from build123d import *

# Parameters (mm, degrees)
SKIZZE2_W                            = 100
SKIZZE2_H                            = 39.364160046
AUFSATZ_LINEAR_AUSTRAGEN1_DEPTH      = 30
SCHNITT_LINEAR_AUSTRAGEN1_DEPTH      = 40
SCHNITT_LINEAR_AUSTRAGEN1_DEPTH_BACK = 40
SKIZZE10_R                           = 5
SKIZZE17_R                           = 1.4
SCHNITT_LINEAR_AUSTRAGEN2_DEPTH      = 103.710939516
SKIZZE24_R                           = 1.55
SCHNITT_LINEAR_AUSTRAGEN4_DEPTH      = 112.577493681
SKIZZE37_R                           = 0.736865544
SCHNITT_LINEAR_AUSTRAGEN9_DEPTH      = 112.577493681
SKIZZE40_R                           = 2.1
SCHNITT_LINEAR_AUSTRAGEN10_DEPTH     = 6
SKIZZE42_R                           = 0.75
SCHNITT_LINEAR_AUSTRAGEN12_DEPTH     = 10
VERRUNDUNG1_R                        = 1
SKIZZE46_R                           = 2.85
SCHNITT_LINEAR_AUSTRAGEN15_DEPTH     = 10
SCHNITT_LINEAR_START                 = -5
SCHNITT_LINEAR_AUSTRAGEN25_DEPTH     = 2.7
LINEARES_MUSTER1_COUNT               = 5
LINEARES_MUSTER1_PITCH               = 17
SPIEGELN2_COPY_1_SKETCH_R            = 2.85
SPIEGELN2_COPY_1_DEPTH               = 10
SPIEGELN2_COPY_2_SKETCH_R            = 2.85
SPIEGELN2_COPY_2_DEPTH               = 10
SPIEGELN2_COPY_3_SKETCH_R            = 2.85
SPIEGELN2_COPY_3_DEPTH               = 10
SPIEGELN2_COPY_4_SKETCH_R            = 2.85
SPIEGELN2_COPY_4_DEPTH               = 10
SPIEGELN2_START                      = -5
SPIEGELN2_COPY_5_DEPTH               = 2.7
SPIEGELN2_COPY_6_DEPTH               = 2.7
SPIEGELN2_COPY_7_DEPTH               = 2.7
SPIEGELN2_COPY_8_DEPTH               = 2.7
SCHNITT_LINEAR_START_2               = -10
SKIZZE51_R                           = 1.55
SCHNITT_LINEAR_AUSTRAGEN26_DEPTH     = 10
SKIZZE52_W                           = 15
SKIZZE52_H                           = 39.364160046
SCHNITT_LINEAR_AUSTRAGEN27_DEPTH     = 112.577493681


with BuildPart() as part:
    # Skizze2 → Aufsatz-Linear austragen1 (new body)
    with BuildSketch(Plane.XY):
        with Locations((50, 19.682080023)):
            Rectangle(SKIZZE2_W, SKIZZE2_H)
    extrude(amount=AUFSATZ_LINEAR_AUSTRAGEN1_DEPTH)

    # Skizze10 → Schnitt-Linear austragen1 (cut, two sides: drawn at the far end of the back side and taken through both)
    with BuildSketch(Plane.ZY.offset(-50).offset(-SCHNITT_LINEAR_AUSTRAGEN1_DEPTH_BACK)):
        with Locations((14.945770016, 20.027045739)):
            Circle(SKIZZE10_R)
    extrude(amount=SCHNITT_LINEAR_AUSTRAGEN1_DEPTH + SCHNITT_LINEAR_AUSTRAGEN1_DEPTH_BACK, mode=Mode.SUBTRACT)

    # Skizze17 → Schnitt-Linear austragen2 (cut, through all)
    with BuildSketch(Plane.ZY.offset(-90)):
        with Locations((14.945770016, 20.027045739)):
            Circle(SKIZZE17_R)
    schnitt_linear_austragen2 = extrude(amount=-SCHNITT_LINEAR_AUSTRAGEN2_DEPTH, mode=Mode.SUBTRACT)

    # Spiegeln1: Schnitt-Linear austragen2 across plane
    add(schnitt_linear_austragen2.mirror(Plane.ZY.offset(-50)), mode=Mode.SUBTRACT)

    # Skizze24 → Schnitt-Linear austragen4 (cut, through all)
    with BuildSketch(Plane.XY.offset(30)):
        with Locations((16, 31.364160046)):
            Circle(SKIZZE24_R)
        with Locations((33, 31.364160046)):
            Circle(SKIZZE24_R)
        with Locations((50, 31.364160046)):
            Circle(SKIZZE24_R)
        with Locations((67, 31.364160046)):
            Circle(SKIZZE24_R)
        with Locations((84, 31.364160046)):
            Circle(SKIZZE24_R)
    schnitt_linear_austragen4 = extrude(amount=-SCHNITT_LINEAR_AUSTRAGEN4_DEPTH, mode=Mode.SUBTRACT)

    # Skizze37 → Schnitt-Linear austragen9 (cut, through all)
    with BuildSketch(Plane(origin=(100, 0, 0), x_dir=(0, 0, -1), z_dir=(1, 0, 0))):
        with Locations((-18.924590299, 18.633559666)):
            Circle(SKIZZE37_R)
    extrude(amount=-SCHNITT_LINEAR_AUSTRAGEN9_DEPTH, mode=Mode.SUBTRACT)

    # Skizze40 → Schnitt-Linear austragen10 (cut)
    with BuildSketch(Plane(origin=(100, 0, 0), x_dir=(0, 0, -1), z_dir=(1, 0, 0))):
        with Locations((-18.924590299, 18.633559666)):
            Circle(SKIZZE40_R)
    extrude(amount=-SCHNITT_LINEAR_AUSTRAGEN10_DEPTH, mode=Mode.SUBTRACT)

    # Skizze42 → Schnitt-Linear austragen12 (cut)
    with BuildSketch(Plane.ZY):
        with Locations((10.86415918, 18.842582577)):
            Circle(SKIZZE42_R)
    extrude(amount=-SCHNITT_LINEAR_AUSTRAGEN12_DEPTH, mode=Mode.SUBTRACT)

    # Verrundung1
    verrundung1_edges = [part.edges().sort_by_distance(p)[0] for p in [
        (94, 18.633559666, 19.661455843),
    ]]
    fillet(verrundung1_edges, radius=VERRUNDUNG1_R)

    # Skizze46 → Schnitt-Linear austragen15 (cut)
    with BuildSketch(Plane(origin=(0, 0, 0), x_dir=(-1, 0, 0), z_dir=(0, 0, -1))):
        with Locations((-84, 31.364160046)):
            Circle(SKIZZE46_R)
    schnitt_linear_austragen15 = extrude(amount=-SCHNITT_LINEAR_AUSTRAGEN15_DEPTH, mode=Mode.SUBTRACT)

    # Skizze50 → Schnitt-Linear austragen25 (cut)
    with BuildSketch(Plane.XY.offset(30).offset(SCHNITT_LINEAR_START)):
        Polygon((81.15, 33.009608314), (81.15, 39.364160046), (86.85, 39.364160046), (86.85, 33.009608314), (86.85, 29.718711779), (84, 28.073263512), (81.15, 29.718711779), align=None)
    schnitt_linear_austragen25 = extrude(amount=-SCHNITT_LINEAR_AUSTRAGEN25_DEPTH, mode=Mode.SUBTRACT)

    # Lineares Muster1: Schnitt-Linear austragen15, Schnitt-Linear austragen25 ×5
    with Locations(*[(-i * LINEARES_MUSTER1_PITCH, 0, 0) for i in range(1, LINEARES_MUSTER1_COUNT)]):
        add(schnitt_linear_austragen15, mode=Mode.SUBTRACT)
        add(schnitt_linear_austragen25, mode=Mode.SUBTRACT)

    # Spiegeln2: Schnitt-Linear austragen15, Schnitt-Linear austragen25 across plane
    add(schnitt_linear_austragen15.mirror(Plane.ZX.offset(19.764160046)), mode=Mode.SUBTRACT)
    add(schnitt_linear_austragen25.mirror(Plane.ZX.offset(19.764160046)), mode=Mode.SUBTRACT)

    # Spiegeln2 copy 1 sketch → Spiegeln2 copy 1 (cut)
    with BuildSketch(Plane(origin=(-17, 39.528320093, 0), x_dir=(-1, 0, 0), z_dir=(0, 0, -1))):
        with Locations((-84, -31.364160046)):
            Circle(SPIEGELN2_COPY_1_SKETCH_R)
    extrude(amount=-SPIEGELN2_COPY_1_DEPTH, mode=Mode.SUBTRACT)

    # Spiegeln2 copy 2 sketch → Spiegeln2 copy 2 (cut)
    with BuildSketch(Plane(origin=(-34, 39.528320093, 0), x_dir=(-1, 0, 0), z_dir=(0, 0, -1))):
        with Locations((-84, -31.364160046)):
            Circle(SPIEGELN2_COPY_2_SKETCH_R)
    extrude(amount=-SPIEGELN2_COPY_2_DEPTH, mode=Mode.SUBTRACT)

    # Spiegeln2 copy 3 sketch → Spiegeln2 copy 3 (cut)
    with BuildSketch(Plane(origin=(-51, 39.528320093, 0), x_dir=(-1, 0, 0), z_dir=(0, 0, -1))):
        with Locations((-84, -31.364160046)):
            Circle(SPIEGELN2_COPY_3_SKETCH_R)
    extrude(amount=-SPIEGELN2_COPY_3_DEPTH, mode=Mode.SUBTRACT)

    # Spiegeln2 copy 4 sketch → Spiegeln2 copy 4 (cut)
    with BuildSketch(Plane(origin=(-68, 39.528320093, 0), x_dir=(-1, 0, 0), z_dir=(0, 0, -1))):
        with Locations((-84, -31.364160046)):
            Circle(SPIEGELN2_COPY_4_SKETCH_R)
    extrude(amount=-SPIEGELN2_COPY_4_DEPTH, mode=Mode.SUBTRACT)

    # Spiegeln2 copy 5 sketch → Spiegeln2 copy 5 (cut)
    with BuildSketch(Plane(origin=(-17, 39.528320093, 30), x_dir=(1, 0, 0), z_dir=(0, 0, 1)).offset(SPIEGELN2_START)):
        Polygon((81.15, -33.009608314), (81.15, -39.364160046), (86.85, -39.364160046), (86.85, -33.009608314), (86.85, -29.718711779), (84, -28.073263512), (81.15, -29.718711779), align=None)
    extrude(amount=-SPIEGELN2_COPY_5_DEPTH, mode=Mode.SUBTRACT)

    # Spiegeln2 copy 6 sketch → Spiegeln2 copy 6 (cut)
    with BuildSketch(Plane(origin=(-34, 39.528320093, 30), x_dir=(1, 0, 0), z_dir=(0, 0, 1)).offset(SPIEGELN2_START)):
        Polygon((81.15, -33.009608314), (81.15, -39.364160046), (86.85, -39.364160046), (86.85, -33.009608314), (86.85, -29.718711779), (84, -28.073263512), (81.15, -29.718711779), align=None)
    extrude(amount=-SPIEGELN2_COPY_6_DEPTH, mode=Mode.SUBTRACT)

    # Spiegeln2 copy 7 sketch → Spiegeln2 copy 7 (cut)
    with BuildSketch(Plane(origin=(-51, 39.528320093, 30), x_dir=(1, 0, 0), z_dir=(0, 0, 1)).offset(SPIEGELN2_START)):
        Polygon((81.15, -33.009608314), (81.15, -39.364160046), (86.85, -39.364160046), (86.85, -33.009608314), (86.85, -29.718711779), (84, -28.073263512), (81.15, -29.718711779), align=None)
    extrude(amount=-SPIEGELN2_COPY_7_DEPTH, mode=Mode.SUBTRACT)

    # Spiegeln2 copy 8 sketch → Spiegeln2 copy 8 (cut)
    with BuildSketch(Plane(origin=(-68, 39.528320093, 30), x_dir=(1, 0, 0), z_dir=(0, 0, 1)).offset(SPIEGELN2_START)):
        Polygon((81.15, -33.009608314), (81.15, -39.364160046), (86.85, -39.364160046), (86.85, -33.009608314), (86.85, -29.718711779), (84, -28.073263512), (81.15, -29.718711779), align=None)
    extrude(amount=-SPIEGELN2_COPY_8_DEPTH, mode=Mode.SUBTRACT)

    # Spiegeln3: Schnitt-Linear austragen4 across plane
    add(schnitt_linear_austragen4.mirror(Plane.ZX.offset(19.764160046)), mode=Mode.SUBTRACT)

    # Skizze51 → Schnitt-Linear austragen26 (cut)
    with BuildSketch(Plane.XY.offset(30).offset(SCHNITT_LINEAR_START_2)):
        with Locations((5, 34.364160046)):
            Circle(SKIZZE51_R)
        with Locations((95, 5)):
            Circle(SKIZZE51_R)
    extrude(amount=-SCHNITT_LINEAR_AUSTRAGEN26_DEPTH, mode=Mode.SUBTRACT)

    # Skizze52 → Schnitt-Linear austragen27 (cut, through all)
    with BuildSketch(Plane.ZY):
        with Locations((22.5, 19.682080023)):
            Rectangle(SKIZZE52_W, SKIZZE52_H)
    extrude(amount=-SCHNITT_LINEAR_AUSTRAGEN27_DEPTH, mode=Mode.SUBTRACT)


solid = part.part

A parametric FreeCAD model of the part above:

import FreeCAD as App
import Part
import Sketcher
Q = App.Units.Quantity


def edges_at(feature, points):
    """Names of the edges that pass closest to the given points."""
    edges = feature.Shape.Edges
    near = lambda p: min(range(len(edges)), key=lambda i: edges[i].distToShape(Part.Vertex(*p))[0])
    return sorted({f"Edge{near(p) + 1}" for p in points})


def add_polygon(sketch, points):
    """Adds a closed chain of lines whose ends are joined by coincident constraints."""
    first, n = sketch.GeometryCount, len(points)
    for a, b in zip(points, points[1:] + points[:1]):
        sketch.addGeometry(Part.LineSegment(App.Vector(*a, 0), App.Vector(*b, 0)), False)
    for i in range(n):
        sketch.addConstraint(Sketcher.Constraint("Coincident", first + i, 2, first + (i + 1) % n, 1))

doc = App.newDocument("Part")
body = doc.addObject("PartDesign::Body", "Body")

sketch1 = body.newObject("Sketcher::SketchObject", "Sketch")
sketch1.AttachmentSupport = (doc.getObject("XY_Plane"), [""])
sketch1.MapMode = "FlatFace"
add_polygon(sketch1, [(0, 39), (0, 0), (100, 0), (100, 39)])
sketch1.addConstraint([
    Sketcher.Constraint("Vertical", 0),
    Sketcher.Constraint("Horizontal", 1),
    Sketcher.Constraint("Vertical", 2),
    Sketcher.Constraint("Horizontal", 3),
    Sketcher.Constraint("Coincident", 0, 2, -1, 1),
    Sketcher.Constraint("DistanceX", 1, 1, 1, 2, Q("100 mm")),
    Sketcher.Constraint("DistanceY", 0, 2, 0, 1, Q("39.36416 mm")),
])
pad1 = body.newObject("PartDesign::Pad", "Pad")
pad1.Profile = sketch1
pad1.Length = 30

sketch2 = body.newObject("Sketcher::SketchObject", "Sketch001")
sketch2.AttachmentSupport = (doc.getObject("YZ_Plane"), [""])
sketch2.MapMode = "FlatFace"
sketch2.AttachmentOffset = App.Placement(App.Vector(0, 0, 50), App.Rotation())
sketch2.addGeometry(Part.Circle(App.Vector(20, 15, 0), App.Vector(0, 0, 1), 5), False)
sketch2.addConstraint([
    Sketcher.Constraint("Diameter", 0, Q("10 mm")),
    Sketcher.Constraint("DistanceY", -1, 1, 0, 3, Q("14.94577 mm")),
    Sketcher.Constraint("DistanceX", -1, 1, 0, 3, Q("20.027046 mm")),
])
pocket1 = body.newObject("PartDesign::Pocket", "Pocket")
pocket1.Profile = sketch2
pocket1.Type = "TwoLengths"
pocket1.Length = 40
pocket1.Length2 = 40

sketch3 = body.newObject("Sketcher::SketchObject", "Sketch002")
sketch3.AttachmentSupport = (doc.getObject("YZ_Plane"), [""])
sketch3.MapMode = "FlatFace"
sketch3.AttachmentOffset = App.Placement(App.Vector(0, 0, 90), App.Rotation())
sketch3.addGeometry(Part.Circle(App.Vector(20, 14.9, 0), App.Vector(0, 0, 1), 1.4), False)
sketch3.addConstraint([
    Sketcher.Constraint("Diameter", 0, Q("2.8 mm")),
    Sketcher.Constraint("DistanceY", -1, 1, 0, 3, Q("14.94577 mm")),
    Sketcher.Constraint("DistanceX", -1, 1, 0, 3, Q("20.027046 mm")),
])
pocket2 = body.newObject("PartDesign::Pocket", "Pocket001")
pocket2.Profile = sketch3
pocket2.Type = "ThroughAll"
pocket2.Reversed = True
doc.recompute()

datumplane = body.newObject("PartDesign::Plane", "DatumPlane")
datumplane.AttachmentSupport = (doc.getObject("YZ_Plane"), [""])
datumplane.MapMode = "FlatFace"
datumplane.AttachmentOffset = App.Placement(App.Vector(0, 0, 50), App.Rotation())
mirrored = body.newObject("PartDesign::Mirrored", "Mirrored")
mirrored.Originals = [pocket2]
mirrored.MirrorPlane = (datumplane, [""])
body.Tip = mirrored

sketch4 = body.newObject("Sketcher::SketchObject", "Sketch003")
sketch4.AttachmentSupport = (doc.getObject("XY_Plane"), [""])
sketch4.MapMode = "FlatFace"
sketch4.AttachmentOffset = App.Placement(App.Vector(0, 0, 30), App.Rotation())
sketch4.addGeometry([
    Part.Circle(App.Vector(16, 31.4, 0), App.Vector(0, 0, 1), 1.6),
    Part.Circle(App.Vector(33, 31.4, 0), App.Vector(0, 0, 1), 1.6),
    Part.Circle(App.Vector(50, 31.4, 0), App.Vector(0, 0, 1), 1.6),
    Part.Circle(App.Vector(67, 31.4, 0), App.Vector(0, 0, 1), 1.6),
    Part.Circle(App.Vector(84, 31.4, 0), App.Vector(0, 0, 1), 1.6),
], False)
sketch4.addConstraint([
    Sketcher.Constraint("Equal", 0, 1),
    Sketcher.Constraint("Equal", 1, 2),
    Sketcher.Constraint("Equal", 2, 3),
    Sketcher.Constraint("Equal", 3, 4),
    Sketcher.Constraint("Horizontal", 0, 3, 1, 3),
    Sketcher.Constraint("Horizontal", 1, 3, 2, 3),
    Sketcher.Constraint("Horizontal", 2, 3, 3, 3),
    Sketcher.Constraint("Horizontal", 3, 3, 4, 3),
    Sketcher.Constraint("Diameter", 0, Q("3.1 mm")),
    Sketcher.Constraint("DistanceX", -1, 1, 0, 3, Q("16 mm")),
    Sketcher.Constraint("DistanceX", -1, 1, 1, 3, Q("33 mm")),
    Sketcher.Constraint("DistanceX", -1, 1, 2, 3, Q("50 mm")),
    Sketcher.Constraint("DistanceX", -1, 1, 3, 3, Q("67 mm")),
    Sketcher.Constraint("DistanceX", -1, 1, 4, 3, Q("84 mm")),
    Sketcher.Constraint("DistanceY", -1, 1, 0, 3, Q("31.36416 mm")),
])
pocket3 = body.newObject("PartDesign::Pocket", "Pocket002")
pocket3.Profile = sketch4
pocket3.Type = "ThroughAll"

sketch5 = body.newObject("Sketcher::SketchObject", "Sketch004")
sketch5.AttachmentSupport = (doc.getObject("YZ_Plane"), [""])
sketch5.MapMode = "FlatFace"
sketch5.AttachmentOffset = App.Placement(App.Vector(0, 0, 100), App.Rotation())
sketch5.addGeometry(Part.Circle(App.Vector(18.6, 18.9, 0), App.Vector(0, 0, 1), 0.7), False)
sketch5.addConstraint([
    Sketcher.Constraint("Diameter", 0, Q("1.473731 mm")),
    Sketcher.Constraint("DistanceX", -1, 1, 0, 3, Q("18.63356 mm")),
    Sketcher.Constraint("DistanceY", -1, 1, 0, 3, Q("18.92459 mm")),
])
pocket4 = body.newObject("PartDesign::Pocket", "Pocket003")
pocket4.Profile = sketch5
pocket4.Type = "ThroughAll"

sketch6 = body.newObject("Sketcher::SketchObject", "Sketch005")
sketch6.AttachmentSupport = (doc.getObject("YZ_Plane"), [""])
sketch6.MapMode = "FlatFace"
sketch6.AttachmentOffset = App.Placement(App.Vector(0, 0, 100), App.Rotation())
sketch6.addGeometry(Part.Circle(App.Vector(18.6, 18.9, 0), App.Vector(0, 0, 1), 2.1), False)
sketch6.addConstraint([
    Sketcher.Constraint("Diameter", 0, Q("4.2 mm")),
    Sketcher.Constraint("DistanceX", -1, 1, 0, 3, Q("18.63356 mm")),
    Sketcher.Constraint("DistanceY", -1, 1, 0, 3, Q("18.92459 mm")),
])
pocket5 = body.newObject("PartDesign::Pocket", "Pocket004")
pocket5.Profile = sketch6
pocket5.Length = 6

sketch7 = body.newObject("Sketcher::SketchObject", "Sketch006")
sketch7.AttachmentSupport = (doc.getObject("YZ_Plane"), [""])
sketch7.MapMode = "FlatFace"
sketch7.addGeometry(Part.Circle(App.Vector(18.8, 10.9, 0), App.Vector(0, 0, 1), 0.8), False)
sketch7.addConstraint([
    Sketcher.Constraint("Diameter", 0, Q("1.5 mm")),
    Sketcher.Constraint("DistanceY", -1, 1, 0, 3, Q("10.864159 mm")),
    Sketcher.Constraint("DistanceX", -1, 1, 0, 3, Q("18.842583 mm")),
])
pocket6 = body.newObject("PartDesign::Pocket", "Pocket005")
pocket6.Profile = sketch7
pocket6.Length = 10
pocket6.Reversed = True
doc.recompute()

fillet = body.newObject("PartDesign::Fillet", "Fillet")
fillet.Base = (pocket6, edges_at(pocket6, [(94, 18.634, 19.661)]))
fillet.Radius = 1

sketch8 = body.newObject("Sketcher::SketchObject", "Sketch007")
sketch8.AttachmentSupport = (doc.getObject("XY_Plane"), [""])
sketch8.MapMode = "FlatFace"
sketch8.addGeometry(Part.Circle(App.Vector(84, 31.4, 0), App.Vector(0, 0, 1), 2.9), False)
sketch8.addConstraint([
    Sketcher.Constraint("Diameter", 0, Q("5.7 mm")),
    Sketcher.Constraint("DistanceX", -1, 1, 0, 3, Q("84 mm")),
    Sketcher.Constraint("DistanceY", -1, 1, 0, 3, Q("31.36416 mm")),
])
pocket7 = body.newObject("PartDesign::Pocket", "Pocket006")
pocket7.Profile = sketch8
pocket7.Length = 10
pocket7.Reversed = True

sketch9 = body.newObject("Sketcher::SketchObject", "Sketch008")
sketch9.AttachmentSupport = (doc.getObject("XY_Plane"), [""])
sketch9.MapMode = "FlatFace"
sketch9.AttachmentOffset = App.Placement(App.Vector(0, 0, 25), App.Rotation())
add_polygon(sketch9, [(81.2, 39.4), (81.2, 29.7), (84, 28.1), (86.8, 29.7), (86.8, 39.4)])
sketch9.addConstraint([
    Sketcher.Constraint("Vertical", 0),
    Sketcher.Constraint("Vertical", 3),
    Sketcher.Constraint("Horizontal", 4),
    Sketcher.Constraint("Horizontal", 0, 2, 2, 2),
    Sketcher.Constraint("Equal", 1, 2),
    Sketcher.Constraint("Angle", 1, Q("-30 deg")),
    Sketcher.Constraint("DistanceX", 4, 2, 4, 1, Q("5.7 mm")),
    Sketcher.Constraint("DistanceX", -1, 1, 1, 2, Q("84 mm")),
    Sketcher.Constraint("DistanceY", 0, 2, 0, 1, Q("9.645448 mm")),
    Sketcher.Constraint("DistanceY", -1, 1, 0, 2, Q("29.718712 mm")),
])
pocket8 = body.newObject("PartDesign::Pocket", "Pocket007")
pocket8.Profile = sketch9
pocket8.Length = 2.7
doc.recompute()

linearpattern = body.newObject("PartDesign::LinearPattern", "LinearPattern")
linearpattern.Originals = [pocket7, pocket8]
linearpattern.Direction = (doc.getObject("X_Axis"), [""])
linearpattern.Mode = "offset"
linearpattern.Offset = 17
linearpattern.Occurrences = 5
linearpattern.Reversed = True
body.Tip = linearpattern
doc.recompute()

datumplane2 = body.newObject("PartDesign::Plane", "DatumPlane001")
datumplane2.AttachmentSupport = (doc.getObject("XZ_Plane"), [""])
datumplane2.MapMode = "FlatFace"
datumplane2.AttachmentOffset = App.Placement(App.Vector(0, 0, -19.76416), App.Rotation())
mirrored2 = body.newObject("PartDesign::Mirrored", "Mirrored001")
mirrored2.Originals = [pocket7, pocket8]
mirrored2.MirrorPlane = (datumplane2, [""])
body.Tip = mirrored2

sketch10 = body.newObject("Sketcher::SketchObject", "Sketch009")
sketch10.AttachmentSupport = (doc.getObject("XY_Plane"), [""])
sketch10.MapMode = "FlatFace"
sketch10.addGeometry(Part.Circle(App.Vector(67, 8.2, 0), App.Vector(0, 0, 1), 2.9), False)
sketch10.addConstraint([
    Sketcher.Constraint("Diameter", 0, Q("5.7 mm")),
    Sketcher.Constraint("DistanceX", -1, 1, 0, 3, Q("67 mm")),
    Sketcher.Constraint("DistanceY", -1, 1, 0, 3, Q("8.16416 mm")),
])
pocket9 = body.newObject("PartDesign::Pocket", "Pocket008")
pocket9.Profile = sketch10
pocket9.Length = 10
pocket9.Reversed = True

sketch11 = body.newObject("Sketcher::SketchObject", "Sketch010")
sketch11.AttachmentSupport = (doc.getObject("XY_Plane"), [""])
sketch11.MapMode = "FlatFace"
sketch11.addGeometry(Part.Circle(App.Vector(50, 8.2, 0), App.Vector(0, 0, 1), 2.9), False)
sketch11.addConstraint([
    Sketcher.Constraint("Diameter", 0, Q("5.7 mm")),
    Sketcher.Constraint("DistanceX", -1, 1, 0, 3, Q("50 mm")),
    Sketcher.Constraint("DistanceY", -1, 1, 0, 3, Q("8.16416 mm")),
])
pocket10 = body.newObject("PartDesign::Pocket", "Pocket009")
pocket10.Profile = sketch11
pocket10.Length = 10
pocket10.Reversed = True

sketch12 = body.newObject("Sketcher::SketchObject", "Sketch011")
sketch12.AttachmentSupport = (doc.getObject("XY_Plane"), [""])
sketch12.MapMode = "FlatFace"
sketch12.addGeometry(Part.Circle(App.Vector(33, 8.2, 0), App.Vector(0, 0, 1), 2.9), False)
sketch12.addConstraint([
    Sketcher.Constraint("Diameter", 0, Q("5.7 mm")),
    Sketcher.Constraint("DistanceX", -1, 1, 0, 3, Q("33 mm")),
    Sketcher.Constraint("DistanceY", -1, 1, 0, 3, Q("8.16416 mm")),
])
pocket11 = body.newObject("PartDesign::Pocket", "Pocket010")
pocket11.Profile = sketch12
pocket11.Length = 10
pocket11.Reversed = True

sketch13 = body.newObject("Sketcher::SketchObject", "Sketch012")
sketch13.AttachmentSupport = (doc.getObject("XY_Plane"), [""])
sketch13.MapMode = "FlatFace"
sketch13.addGeometry(Part.Circle(App.Vector(16, 8.2, 0), App.Vector(0, 0, 1), 2.9), False)
sketch13.addConstraint([
    Sketcher.Constraint("Diameter", 0, Q("5.7 mm")),
    Sketcher.Constraint("DistanceX", -1, 1, 0, 3, Q("16 mm")),
    Sketcher.Constraint("DistanceY", -1, 1, 0, 3, Q("8.16416 mm")),
])
pocket12 = body.newObject("PartDesign::Pocket", "Pocket011")
pocket12.Profile = sketch13
pocket12.Length = 10
pocket12.Reversed = True

sketch14 = body.newObject("Sketcher::SketchObject", "Sketch013")
sketch14.AttachmentSupport = (doc.getObject("XY_Plane"), [""])
sketch14.MapMode = "FlatFace"
sketch14.AttachmentOffset = App.Placement(App.Vector(0, 0, 25), App.Rotation())
add_polygon(sketch14, [(64.2, 0.2), (69.8, 0.2), (69.8, 9.8), (67, 11.5), (64.2, 9.8)])
sketch14.addConstraint([
    Sketcher.Constraint("Horizontal", 0),
    Sketcher.Constraint("Vertical", 1),
    Sketcher.Constraint("Vertical", 4),
    Sketcher.Constraint("Horizontal", 1, 2, 3, 2),
    Sketcher.Constraint("Equal", 2, 3),
    Sketcher.Constraint("Angle", 2, Q("150 deg")),
    Sketcher.Constraint("DistanceX", 0, 1, 0, 2, Q("5.7 mm")),
    Sketcher.Constraint("DistanceX", -1, 1, 2, 2, Q("67 mm")),
    Sketcher.Constraint("DistanceY", 1, 1, 1, 2, Q("9.645448 mm")),
    Sketcher.Constraint("DistanceY", -1, 1, 0, 2, Q("0.16416 mm")),
])
pocket13 = body.newObject("PartDesign::Pocket", "Pocket012")
pocket13.Profile = sketch14
pocket13.Length = 2.7

sketch15 = body.newObject("Sketcher::SketchObject", "Sketch014")
sketch15.AttachmentSupport = (doc.getObject("XY_Plane"), [""])
sketch15.MapMode = "FlatFace"
sketch15.AttachmentOffset = App.Placement(App.Vector(0, 0, 25), App.Rotation())
add_polygon(sketch15, [(47.1, 0.2), (52.9, 0.2), (52.9, 9.8), (50, 11.5), (47.1, 9.8)])
sketch15.addConstraint([
    Sketcher.Constraint("Horizontal", 0),
    Sketcher.Constraint("Vertical", 1),
    Sketcher.Constraint("Vertical", 4),
    Sketcher.Constraint("Horizontal", 1, 2, 3, 2),
    Sketcher.Constraint("Equal", 2, 3),
    Sketcher.Constraint("Angle", 2, Q("150 deg")),
    Sketcher.Constraint("DistanceX", 0, 1, 0, 2, Q("5.7 mm")),
    Sketcher.Constraint("DistanceX", -1, 1, 2, 2, Q("50 mm")),
    Sketcher.Constraint("DistanceY", 1, 1, 1, 2, Q("9.645448 mm")),
    Sketcher.Constraint("DistanceY", -1, 1, 0, 2, Q("0.16416 mm")),
])
pocket14 = body.newObject("PartDesign::Pocket", "Pocket013")
pocket14.Profile = sketch15
pocket14.Length = 2.7

sketch16 = body.newObject("Sketcher::SketchObject", "Sketch015")
sketch16.AttachmentSupport = (doc.getObject("XY_Plane"), [""])
sketch16.MapMode = "FlatFace"
sketch16.AttachmentOffset = App.Placement(App.Vector(0, 0, 25), App.Rotation())
add_polygon(sketch16, [(30.1, 0.2), (35.9, 0.2), (35.9, 9.8), (33, 11.5), (30.1, 9.8)])
sketch16.addConstraint([
    Sketcher.Constraint("Horizontal", 0),
    Sketcher.Constraint("Vertical", 1),
    Sketcher.Constraint("Vertical", 4),
    Sketcher.Constraint("Horizontal", 1, 2, 3, 2),
    Sketcher.Constraint("Equal", 2, 3),
    Sketcher.Constraint("Angle", 2, Q("150 deg")),
    Sketcher.Constraint("DistanceX", 0, 1, 0, 2, Q("5.7 mm")),
    Sketcher.Constraint("DistanceX", -1, 1, 2, 2, Q("33 mm")),
    Sketcher.Constraint("DistanceY", 1, 1, 1, 2, Q("9.645448 mm")),
    Sketcher.Constraint("DistanceY", -1, 1, 0, 2, Q("0.16416 mm")),
])
pocket15 = body.newObject("PartDesign::Pocket", "Pocket014")
pocket15.Profile = sketch16
pocket15.Length = 2.7

sketch17 = body.newObject("Sketcher::SketchObject", "Sketch016")
sketch17.AttachmentSupport = (doc.getObject("XY_Plane"), [""])
sketch17.MapMode = "FlatFace"
sketch17.AttachmentOffset = App.Placement(App.Vector(0, 0, 25), App.Rotation())
add_polygon(sketch17, [(13.2, 0.2), (18.9, 0.2), (18.9, 9.8), (16, 11.5), (13.2, 9.8)])
sketch17.addConstraint([
    Sketcher.Constraint("Horizontal", 0),
    Sketcher.Constraint("Vertical", 1),
    Sketcher.Constraint("Vertical", 4),
    Sketcher.Constraint("Horizontal", 1, 2, 3, 2),
    Sketcher.Constraint("Equal", 2, 3),
    Sketcher.Constraint("Angle", 2, Q("150 deg")),
    Sketcher.Constraint("DistanceX", 0, 1, 0, 2, Q("5.7 mm")),
    Sketcher.Constraint("DistanceX", -1, 1, 2, 2, Q("16 mm")),
    Sketcher.Constraint("DistanceY", 1, 1, 1, 2, Q("9.645448 mm")),
    Sketcher.Constraint("DistanceY", -1, 1, 0, 2, Q("0.16416 mm")),
])
pocket16 = body.newObject("PartDesign::Pocket", "Pocket015")
pocket16.Profile = sketch17
pocket16.Length = 2.7
doc.recompute()

datumplane3 = body.newObject("PartDesign::Plane", "DatumPlane002")
datumplane3.AttachmentSupport = (doc.getObject("XZ_Plane"), [""])
datumplane3.MapMode = "FlatFace"
datumplane3.AttachmentOffset = App.Placement(App.Vector(0, 0, -19.76416), App.Rotation())
mirrored3 = body.newObject("PartDesign::Mirrored", "Mirrored002")
mirrored3.Originals = [pocket3]
mirrored3.MirrorPlane = (datumplane3, [""])
body.Tip = mirrored3

sketch18 = body.newObject("Sketcher::SketchObject", "Sketch017")
sketch18.AttachmentSupport = (doc.getObject("XY_Plane"), [""])
sketch18.MapMode = "FlatFace"
sketch18.AttachmentOffset = App.Placement(App.Vector(0, 0, 20), App.Rotation())
sketch18.addGeometry([
    Part.Circle(App.Vector(5, 34.4, 0), App.Vector(0, 0, 1), 1.6),
    Part.Circle(App.Vector(95, 5, 0), App.Vector(0, 0, 1), 1.6),
], False)
sketch18.addConstraint([
    Sketcher.Constraint("Equal", 0, 1),
    Sketcher.Constraint("Diameter", 0, Q("3.1 mm")),
    Sketcher.Constraint("DistanceX", -1, 1, 0, 3, Q("5 mm")),
    Sketcher.Constraint("DistanceX", -1, 1, 1, 3, Q("95 mm")),
    Sketcher.Constraint("DistanceY", -1, 1, 1, 3, Q("5 mm")),
    Sketcher.Constraint("DistanceY", -1, 1, 0, 3, Q("34.36416 mm")),
])
pocket17 = body.newObject("PartDesign::Pocket", "Pocket016")
pocket17.Profile = sketch18
pocket17.Length = 10

sketch19 = body.newObject("Sketcher::SketchObject", "Sketch018")
sketch19.AttachmentSupport = (doc.getObject("YZ_Plane"), [""])
sketch19.MapMode = "FlatFace"
add_polygon(sketch19, [(39, 15), (0, 15), (0, 30), (39, 30)])
sketch19.addConstraint([
    Sketcher.Constraint("Horizontal", 0),
    Sketcher.Constraint("Vertical", 1),
    Sketcher.Constraint("Horizontal", 2),
    Sketcher.Constraint("Vertical", 3),
    Sketcher.Constraint("PointOnObject", 0, 2, -2),
    Sketcher.Constraint("DistanceY", 1, 1, 1, 2, Q("15 mm")),
    Sketcher.Constraint("DistanceY", -1, 1, 0, 2, Q("15 mm")),
    Sketcher.Constraint("DistanceX", 0, 2, 0, 1, Q("39.36416 mm")),
])
pocket18 = body.newObject("PartDesign::Pocket", "Pocket017")
pocket18.Profile = sketch19
pocket18.Type = "ThroughAll"
pocket18.Reversed = True

doc.recompute()
